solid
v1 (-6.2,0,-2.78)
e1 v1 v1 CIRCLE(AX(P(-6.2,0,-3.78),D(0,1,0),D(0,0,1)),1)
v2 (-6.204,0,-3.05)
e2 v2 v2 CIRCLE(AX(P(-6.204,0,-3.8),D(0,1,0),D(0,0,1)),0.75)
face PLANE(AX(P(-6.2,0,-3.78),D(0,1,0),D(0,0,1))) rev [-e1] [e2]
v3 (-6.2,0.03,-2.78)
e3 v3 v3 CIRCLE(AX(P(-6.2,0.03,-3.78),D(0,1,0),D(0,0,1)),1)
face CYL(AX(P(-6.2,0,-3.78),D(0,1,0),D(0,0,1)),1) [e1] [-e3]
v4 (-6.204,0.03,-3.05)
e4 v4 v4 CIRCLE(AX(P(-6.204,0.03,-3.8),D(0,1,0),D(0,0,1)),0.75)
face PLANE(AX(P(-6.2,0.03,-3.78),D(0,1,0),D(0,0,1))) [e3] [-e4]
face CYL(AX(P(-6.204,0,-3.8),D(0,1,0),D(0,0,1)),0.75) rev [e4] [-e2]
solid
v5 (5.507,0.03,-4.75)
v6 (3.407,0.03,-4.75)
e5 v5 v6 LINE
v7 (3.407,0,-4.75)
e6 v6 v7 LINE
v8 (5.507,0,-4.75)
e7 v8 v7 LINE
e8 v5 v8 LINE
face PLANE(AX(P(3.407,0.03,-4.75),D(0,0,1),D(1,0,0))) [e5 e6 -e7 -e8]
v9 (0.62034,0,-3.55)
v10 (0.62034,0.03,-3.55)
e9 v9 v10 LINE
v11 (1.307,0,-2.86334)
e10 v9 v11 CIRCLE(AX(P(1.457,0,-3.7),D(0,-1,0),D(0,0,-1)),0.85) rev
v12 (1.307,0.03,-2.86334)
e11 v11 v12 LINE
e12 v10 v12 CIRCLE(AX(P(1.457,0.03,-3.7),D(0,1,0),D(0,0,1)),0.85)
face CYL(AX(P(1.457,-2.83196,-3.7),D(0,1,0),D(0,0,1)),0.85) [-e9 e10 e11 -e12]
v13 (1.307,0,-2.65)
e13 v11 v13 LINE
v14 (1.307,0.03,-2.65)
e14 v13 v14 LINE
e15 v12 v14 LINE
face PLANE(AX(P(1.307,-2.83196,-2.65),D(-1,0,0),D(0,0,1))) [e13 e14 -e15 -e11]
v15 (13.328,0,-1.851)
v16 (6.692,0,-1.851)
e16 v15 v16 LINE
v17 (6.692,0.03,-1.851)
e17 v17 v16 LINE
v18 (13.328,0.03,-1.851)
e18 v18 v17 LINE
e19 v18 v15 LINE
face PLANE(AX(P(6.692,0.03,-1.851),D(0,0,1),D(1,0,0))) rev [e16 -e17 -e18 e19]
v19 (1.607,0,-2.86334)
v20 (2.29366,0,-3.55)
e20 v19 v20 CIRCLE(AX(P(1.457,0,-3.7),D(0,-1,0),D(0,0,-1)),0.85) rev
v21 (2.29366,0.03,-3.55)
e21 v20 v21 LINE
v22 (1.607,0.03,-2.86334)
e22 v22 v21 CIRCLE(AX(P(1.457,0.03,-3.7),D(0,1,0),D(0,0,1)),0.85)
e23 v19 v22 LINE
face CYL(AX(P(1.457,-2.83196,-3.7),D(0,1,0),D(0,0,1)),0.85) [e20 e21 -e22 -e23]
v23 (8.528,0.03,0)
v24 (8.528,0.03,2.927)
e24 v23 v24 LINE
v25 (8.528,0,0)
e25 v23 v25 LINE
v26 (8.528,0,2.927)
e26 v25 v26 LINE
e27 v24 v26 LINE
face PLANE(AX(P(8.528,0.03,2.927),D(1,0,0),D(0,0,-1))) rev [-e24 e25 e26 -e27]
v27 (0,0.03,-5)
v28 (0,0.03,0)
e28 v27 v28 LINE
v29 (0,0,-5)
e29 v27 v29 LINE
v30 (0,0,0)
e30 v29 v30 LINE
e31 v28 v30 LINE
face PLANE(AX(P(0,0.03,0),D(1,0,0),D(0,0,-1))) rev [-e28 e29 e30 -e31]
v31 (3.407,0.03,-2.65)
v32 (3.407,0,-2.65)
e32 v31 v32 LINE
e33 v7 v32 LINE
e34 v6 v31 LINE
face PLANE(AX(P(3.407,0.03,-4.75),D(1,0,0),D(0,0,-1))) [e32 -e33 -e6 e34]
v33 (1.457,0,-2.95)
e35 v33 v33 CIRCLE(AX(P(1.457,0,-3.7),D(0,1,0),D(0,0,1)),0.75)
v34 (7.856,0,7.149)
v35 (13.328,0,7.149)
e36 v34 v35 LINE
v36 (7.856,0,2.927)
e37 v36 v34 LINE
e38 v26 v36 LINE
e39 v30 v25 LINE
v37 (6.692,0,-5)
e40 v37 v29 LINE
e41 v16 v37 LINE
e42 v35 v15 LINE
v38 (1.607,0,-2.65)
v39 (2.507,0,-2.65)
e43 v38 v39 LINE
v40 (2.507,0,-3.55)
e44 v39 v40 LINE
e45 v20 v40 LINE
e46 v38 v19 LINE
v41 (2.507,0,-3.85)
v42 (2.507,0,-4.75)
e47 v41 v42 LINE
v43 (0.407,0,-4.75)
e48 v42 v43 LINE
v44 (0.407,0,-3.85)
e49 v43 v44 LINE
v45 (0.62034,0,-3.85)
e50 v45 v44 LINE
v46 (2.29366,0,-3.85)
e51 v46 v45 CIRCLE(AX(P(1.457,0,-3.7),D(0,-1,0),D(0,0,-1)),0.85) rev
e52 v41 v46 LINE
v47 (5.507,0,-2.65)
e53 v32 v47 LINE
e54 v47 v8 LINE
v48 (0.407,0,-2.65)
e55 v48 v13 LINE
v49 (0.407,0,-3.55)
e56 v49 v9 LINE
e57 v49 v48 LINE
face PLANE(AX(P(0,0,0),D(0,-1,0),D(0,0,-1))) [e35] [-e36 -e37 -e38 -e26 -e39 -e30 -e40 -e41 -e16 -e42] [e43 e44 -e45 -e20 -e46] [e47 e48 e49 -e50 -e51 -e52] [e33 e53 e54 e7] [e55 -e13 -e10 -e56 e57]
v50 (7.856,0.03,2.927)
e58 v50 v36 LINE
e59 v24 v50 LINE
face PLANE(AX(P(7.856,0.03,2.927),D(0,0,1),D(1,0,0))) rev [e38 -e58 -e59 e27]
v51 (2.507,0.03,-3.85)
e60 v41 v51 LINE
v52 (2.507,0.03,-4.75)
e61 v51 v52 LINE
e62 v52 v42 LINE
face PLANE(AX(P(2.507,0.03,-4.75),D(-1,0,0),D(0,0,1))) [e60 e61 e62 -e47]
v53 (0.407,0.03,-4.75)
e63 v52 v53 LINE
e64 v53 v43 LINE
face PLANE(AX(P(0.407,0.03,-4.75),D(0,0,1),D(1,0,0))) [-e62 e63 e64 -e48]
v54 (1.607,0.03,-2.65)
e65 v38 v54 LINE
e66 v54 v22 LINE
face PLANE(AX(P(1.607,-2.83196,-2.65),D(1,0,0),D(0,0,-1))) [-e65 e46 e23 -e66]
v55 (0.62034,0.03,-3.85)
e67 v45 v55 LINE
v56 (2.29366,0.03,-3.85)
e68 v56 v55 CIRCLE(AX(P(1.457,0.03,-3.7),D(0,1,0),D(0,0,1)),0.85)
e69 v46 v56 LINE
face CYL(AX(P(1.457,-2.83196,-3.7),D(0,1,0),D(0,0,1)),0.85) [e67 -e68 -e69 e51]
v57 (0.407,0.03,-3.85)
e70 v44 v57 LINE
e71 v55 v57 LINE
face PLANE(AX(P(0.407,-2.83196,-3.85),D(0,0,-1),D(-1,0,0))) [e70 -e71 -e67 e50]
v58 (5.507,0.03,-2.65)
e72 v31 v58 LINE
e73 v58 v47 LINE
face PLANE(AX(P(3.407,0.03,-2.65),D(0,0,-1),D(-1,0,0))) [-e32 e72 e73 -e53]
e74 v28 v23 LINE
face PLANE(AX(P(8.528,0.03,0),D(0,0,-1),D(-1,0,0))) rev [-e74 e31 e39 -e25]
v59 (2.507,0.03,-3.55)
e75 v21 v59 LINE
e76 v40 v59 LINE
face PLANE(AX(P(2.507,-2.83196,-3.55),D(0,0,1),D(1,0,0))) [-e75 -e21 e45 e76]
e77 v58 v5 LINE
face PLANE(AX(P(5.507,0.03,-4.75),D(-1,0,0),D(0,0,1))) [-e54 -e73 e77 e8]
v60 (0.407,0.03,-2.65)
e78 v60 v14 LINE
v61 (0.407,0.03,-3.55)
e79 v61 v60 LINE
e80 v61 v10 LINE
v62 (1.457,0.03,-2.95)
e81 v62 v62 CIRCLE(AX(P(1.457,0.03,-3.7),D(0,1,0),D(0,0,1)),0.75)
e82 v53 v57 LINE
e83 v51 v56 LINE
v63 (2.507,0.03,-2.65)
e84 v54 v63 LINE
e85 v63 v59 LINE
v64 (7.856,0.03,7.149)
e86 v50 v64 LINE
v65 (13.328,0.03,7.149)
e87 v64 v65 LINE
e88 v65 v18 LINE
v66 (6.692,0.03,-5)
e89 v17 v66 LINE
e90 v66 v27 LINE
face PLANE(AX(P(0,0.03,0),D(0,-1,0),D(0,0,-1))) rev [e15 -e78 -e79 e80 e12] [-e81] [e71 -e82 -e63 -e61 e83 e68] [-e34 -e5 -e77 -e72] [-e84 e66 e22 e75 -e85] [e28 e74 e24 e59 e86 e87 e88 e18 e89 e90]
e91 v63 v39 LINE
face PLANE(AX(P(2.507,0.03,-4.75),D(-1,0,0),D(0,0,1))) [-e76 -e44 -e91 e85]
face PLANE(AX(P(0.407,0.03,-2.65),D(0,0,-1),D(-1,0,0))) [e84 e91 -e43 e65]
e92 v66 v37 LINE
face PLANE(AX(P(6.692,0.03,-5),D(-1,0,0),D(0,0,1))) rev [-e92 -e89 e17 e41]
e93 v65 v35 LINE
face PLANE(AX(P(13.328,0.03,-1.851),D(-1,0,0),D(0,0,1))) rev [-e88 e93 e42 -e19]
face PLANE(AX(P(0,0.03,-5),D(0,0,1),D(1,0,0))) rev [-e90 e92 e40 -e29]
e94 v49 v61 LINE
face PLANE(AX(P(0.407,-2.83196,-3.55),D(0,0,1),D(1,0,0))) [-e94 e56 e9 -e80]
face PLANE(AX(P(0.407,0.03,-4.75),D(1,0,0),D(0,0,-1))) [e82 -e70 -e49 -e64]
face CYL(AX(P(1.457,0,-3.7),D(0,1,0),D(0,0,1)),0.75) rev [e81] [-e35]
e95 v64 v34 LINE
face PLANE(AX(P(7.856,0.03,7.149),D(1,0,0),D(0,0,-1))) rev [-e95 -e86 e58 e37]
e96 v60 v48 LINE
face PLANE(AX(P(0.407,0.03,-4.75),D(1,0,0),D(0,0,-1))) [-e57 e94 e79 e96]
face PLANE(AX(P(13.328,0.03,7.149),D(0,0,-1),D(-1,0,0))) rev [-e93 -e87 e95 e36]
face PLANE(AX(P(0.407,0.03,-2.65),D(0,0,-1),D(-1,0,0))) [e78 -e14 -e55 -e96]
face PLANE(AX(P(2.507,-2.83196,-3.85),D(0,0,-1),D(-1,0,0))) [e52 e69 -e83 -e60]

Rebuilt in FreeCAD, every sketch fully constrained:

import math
import FreeCAD as App
import Part
import Sketcher

V = App.Vector
Q = App.Units.Quantity

doc = App.newDocument("Part")
params = doc.addObject("Spreadsheet::Sheet", "Params")
for row, (alias, value) in enumerate([
    ("sketch1_height", "5 mm"),
    ("sketch1_height2", "9 mm"),
    ("sketch1_width", "2.1 mm"),
    ("pad1_length", "0.03 mm"),
    ("sketch2_radius", "0.85 mm"),
    ("sketch2_width", "0.3 mm"),
    ("pad2_length", "0.03 mm"),
    ("sketch3_diameter", "2 mm"),
    ("pad3_length", "0.03 mm"),
    ("sketch4_diameter", "1.5 mm"),
    ("pad4_length", "16.124308 mm"),
    ("pad4_length2", "16.124308 mm"),
], start=1):
    params.set(f"A{row}", alias)
    params.set(f"B{row}", "=" + value)
    params.setAlias(f"B{row}", alias)

body = doc.addObject("PartDesign::Body", "Body")

sketch1 = doc.addObject("Sketcher::SketchObject", "Sketch")
body.addObject(sketch1)
sketch1.AttachmentSupport = (doc.XZ_Plane, [""])
sketch1.MapMode = "FlatFace"
sketch1.addGeometry([
    Part.LineSegment(V(0, -5, 0), V(0, 0, 0)),
    Part.LineSegment(V(0, 0, 0), V(8.528, 0, 0)),
    Part.LineSegment(V(8.528, 0, 0), V(8.528, 2.927, 0)),
    Part.LineSegment(V(8.528, 2.927, 0), V(7.856, 2.927, 0)),
    Part.LineSegment(V(7.856, 2.927, 0), V(7.856, 7.149, 0)),
    Part.LineSegment(V(7.856, 7.149, 0), V(13.328, 7.149, 0)),
    Part.LineSegment(V(13.328, 7.149, 0), V(13.328, -1.851, 0)),
    Part.LineSegment(V(13.328, -1.851, 0), V(6.692, -1.851, 0)),
    Part.LineSegment(V(6.692, -1.851, 0), V(6.692, -5, 0)),
    Part.LineSegment(V(6.692, -5, 0), V(0, -5, 0)),
    Part.LineSegment(V(3.407, -2.65, 0), V(3.407, -4.75, 0)),
    Part.LineSegment(V(3.407, -4.75, 0), V(5.507, -4.75, 0)),
    Part.LineSegment(V(5.507, -4.75, 0), V(5.507, -2.65, 0)),
    Part.LineSegment(V(5.507, -2.65, 0), V(3.407, -2.65, 0)),
    Part.LineSegment(V(0.407, -2.65, 0), V(0.407, -4.75, 0)),
    Part.LineSegment(V(0.407, -4.75, 0), V(2.507, -4.75, 0)),
    Part.LineSegment(V(2.507, -4.75, 0), V(2.507, -2.65, 0)),
    Part.LineSegment(V(2.507, -2.65, 0), V(0.407, -2.65, 0)),
], False)
sketch1.addConstraint([
    Sketcher.Constraint("Coincident", 0, 2, 1, 1),
    Sketcher.Constraint("Coincident", 1, 2, 2, 1),
    Sketcher.Constraint("Coincident", 2, 2, 3, 1),
    Sketcher.Constraint("Coincident", 3, 2, 4, 1),
    Sketcher.Constraint("Coincident", 4, 2, 5, 1),
    Sketcher.Constraint("Coincident", 5, 2, 6, 1),
    Sketcher.Constraint("Coincident", 6, 2, 7, 1),
    Sketcher.Constraint("Coincident", 7, 2, 8, 1),
    Sketcher.Constraint("Coincident", 8, 2, 9, 1),
    Sketcher.Constraint("Coincident", 9, 2, 0, 1),
    Sketcher.Constraint("Coincident", 10, 2, 11, 1),
    Sketcher.Constraint("Coincident", 11, 2, 12, 1),
    Sketcher.Constraint("Coincident", 12, 2, 13, 1),
    Sketcher.Constraint("Coincident", 13, 2, 10, 1),
    Sketcher.Constraint("Coincident", 14, 2, 15, 1),
    Sketcher.Constraint("Coincident", 15, 2, 16, 1),
    Sketcher.Constraint("Coincident", 16, 2, 17, 1),
    Sketcher.Constraint("Coincident", 17, 2, 14, 1),
    Sketcher.Constraint("Vertical", 0),
    Sketcher.Constraint("Horizontal", 1),
    Sketcher.Constraint("Vertical", 2),
    Sketcher.Constraint("Horizontal", 3),
    Sketcher.Constraint("Vertical", 4),
    Sketcher.Constraint("Horizontal", 5),
    Sketcher.Constraint("Vertical", 6),
    Sketcher.Constraint("Horizontal", 7),
    Sketcher.Constraint("Vertical", 8),
    Sketcher.Constraint("Horizontal", 9),
    Sketcher.Constraint("Vertical", 10),
    Sketcher.Constraint("Horizontal", 11),
    Sketcher.Constraint("Vertical", 12),
    Sketcher.Constraint("Horizontal", 13),
    Sketcher.Constraint("Vertical", 14),
    Sketcher.Constraint("Horizontal", 15),
    Sketcher.Constraint("Vertical", 16),
    Sketcher.Constraint("Horizontal", 17),
    Sketcher.Constraint("Coincident", 0, 2, -1, 1),
    Sketcher.Constraint("Horizontal", 11, 2, 14, 2),
    Sketcher.Constraint("Horizontal", 13, 2, 16, 2),
    Sketcher.Constraint("Equal", 13, 15),
    Sketcher.Constraint("Equal", 17, 10),
    Sketcher.Constraint("DistanceY", 0, 1, 0, 2, Q("5 mm")),
    Sketcher.Constraint("DistanceY", 6, 2, 6, 1, Q("9 mm")),
    Sketcher.Constraint("DistanceX", 11, 1, 11, 2, Q("2.1 mm")),
    Sketcher.Constraint("DistanceX", 14, 2, 10, 2, Q("3 mm")),
    Sketcher.Constraint("DistanceX", 2, 2, 5, 2, Q("4.8 mm")),
    Sketcher.Constraint("DistanceX", 1, 1, 1, 2, Q("8.528 mm")),
    Sketcher.Constraint("DistanceX", 3, 2, 3, 1, Q("0.672 mm")),
    Sketcher.Constraint("DistanceX", 7, 2, 7, 1, Q("6.636 mm")),
    Sketcher.Constraint("DistanceY", 2, 1, 2, 2, Q("2.927 mm")),
    Sketcher.Constraint("DistanceY", 4, 1, 4, 2, Q("4.222 mm")),
    Sketcher.Constraint("DistanceY", 10, 2, -1, 1, Q("4.75 mm")),
    Sketcher.Constraint("DistanceX", -1, 1, 10, 2, Q("3.407 mm")),
])
sketch1.setExpression("Constraints[41]", "Params.sketch1_height")
sketch1.setExpression("Constraints[42]", "Params.sketch1_height2")
sketch1.setExpression("Constraints[43]", "Params.sketch1_width")
pad1 = doc.addObject("PartDesign::Pad", "Pad")
body.addObject(pad1)
pad1.Profile = sketch1
pad1.setExpression("Length", "Params.pad1_length")
pad1.Reversed = True

sketch2 = doc.addObject("Sketcher::SketchObject", "Sketch001")
body.addObject(sketch2)
sketch2.AttachmentSupport = (doc.XZ_Plane, [""])
sketch2.MapMode = "FlatFace"
sketch2.AttachmentOffset = App.Placement(V(0, 0, -0.03), App.Rotation())
sketch2.addGeometry([
    Part.LineSegment(V(2.29366, -3.55, 0), V(2.507, -3.55, 0)),
    Part.LineSegment(V(2.507, -3.55, 0), V(2.507, -3.85, 0)),
    Part.LineSegment(V(2.507, -3.85, 0), V(2.29366, -3.85, 0)),
    Part.ArcOfCircle(Part.Circle(V(1.457, -3.7, 0), V(0, 0, 1), 0.85), math.radians(-169.835751), math.radians(-10.164249)),
    Part.LineSegment(V(0.62034, -3.85, 0), V(0.407, -3.85, 0)),
    Part.LineSegment(V(0.407, -3.85, 0), V(0.407, -3.55, 0)),
    Part.LineSegment(V(0.407, -3.55, 0), V(0.62034, -3.55, 0)),
    Part.ArcOfCircle(Part.Circle(V(1.457, -3.7, 0), V(0, 0, 1), 0.85), math.radians(100.164249), math.radians(169.835751)),
    Part.LineSegment(V(1.307, -2.86334, 0), V(1.307, -2.65, 0)),
    Part.LineSegment(V(1.307, -2.65, 0), V(1.607, -2.65, 0)),
    Part.LineSegment(V(1.607, -2.65, 0), V(1.607, -2.86334, 0)),
    Part.ArcOfCircle(Part.Circle(V(1.457, -3.7, 0), V(0, 0, 1), 0.85), math.radians(10.164249), math.radians(79.835751)),
], False)
sketch2.addConstraint([
    Sketcher.Constraint("Coincident", 0, 2, 1, 1),
    Sketcher.Constraint("Coincident", 1, 2, 2, 1),
    Sketcher.Constraint("Coincident", 2, 2, 3, 2),
    Sketcher.Constraint("Coincident", 3, 1, 4, 1),
    Sketcher.Constraint("Coincident", 4, 2, 5, 1),
    Sketcher.Constraint("Coincident", 5, 2, 6, 1),
    Sketcher.Constraint("Coincident", 6, 2, 7, 2),
    Sketcher.Constraint("Coincident", 7, 1, 8, 1),
    Sketcher.Constraint("Coincident", 8, 2, 9, 1),
    Sketcher.Constraint("Coincident", 9, 2, 10, 1),
    Sketcher.Constraint("Coincident", 10, 2, 11, 2),
    Sketcher.Constraint("Coincident", 11, 1, 0, 1),
    Sketcher.Constraint("Horizontal", 0),
    Sketcher.Constraint("Vertical", 1),
    Sketcher.Constraint("Horizontal", 2),
    Sketcher.Constraint("Horizontal", 4),
    Sketcher.Constraint("Vertical", 5),
    Sketcher.Constraint("Horizontal", 6),
    Sketcher.Constraint("Vertical", 8),
    Sketcher.Constraint("Horizontal", 9),
    Sketcher.Constraint("Vertical", 10),
    Sketcher.Constraint("Coincident", 7, 3, 3, 3),
    Sketcher.Constraint("Coincident", 11, 3, 3, 3),
    Sketcher.Constraint("Equal", 3, 7),
    Sketcher.Constraint("Equal", 7, 11),
    Sketcher.Constraint("Horizontal", 2, 2, 3, 1),
    Sketcher.Constraint("Horizontal", 0, 2, 5, 2),
    Sketcher.Constraint("Horizontal", 7, 1, 10, 2),
    Sketcher.Constraint("Vertical", 3, 1, 6, 2),
    Sketcher.Constraint("Equal", 2, 4),
    Sketcher.Constraint("Equal", 9, 1),
    Sketcher.Constraint("Equal", 6, 8),
    Sketcher.Constraint("Radius", 3, Q("0.85 mm")),
    Sketcher.Constraint("DistanceX", 9, 1, 9, 2, Q("0.3 mm")),
    Sketcher.Constraint("DistanceY", 3, 3, -1, 1, Q("3.7 mm")),
    Sketcher.Constraint("DistanceX", 5, 2, 7, 1, Q("0.9 mm")),
    Sketcher.Constraint("DistanceX", -1, 1, 3, 3, Q("1.457 mm")),
])
sketch2.setExpression("Constraints[32]", "Params.sketch2_radius")
sketch2.setExpression("Constraints[33]", "Params.sketch2_width")
pad2 = doc.addObject("PartDesign::Pad", "Pad001")
body.addObject(pad2)
pad2.Profile = sketch2
pad2.setExpression("Length", "Params.pad2_length")
body2 = doc.addObject("PartDesign::Body", "Body001")

sketch3 = doc.addObject("Sketcher::SketchObject", "Sketch002")
body2.addObject(sketch3)
sketch3.AttachmentSupport = (doc.getObject("XZ_Plane001"), [""])
sketch3.MapMode = "FlatFace"
sketch3.AttachmentOffset = App.Placement(V(0, 0, -0.03), App.Rotation())
sketch3.addGeometry(Part.Circle(V(-6.2, -3.78, 0), V(0, 0, 1), 1), False)
sketch3.addConstraint([
    Sketcher.Constraint("Diameter", 0, Q("2 mm")),
    Sketcher.Constraint("DistanceX", 0, 3, -1, 1, Q("6.2 mm")),
    Sketcher.Constraint("DistanceY", 0, 3, -1, 1, Q("3.78 mm")),
])
sketch3.setExpression("Constraints[0]", "Params.sketch3_diameter")
pad3 = doc.addObject("PartDesign::Pad", "Pad002")
body2.addObject(pad3)
pad3.Profile = sketch3
pad3.setExpression("Length", "Params.pad3_length")
body3 = doc.addObject("PartDesign::Body", "Body002")
body3.AllowCompound = True

sketch4 = doc.addObject("Sketcher::SketchObject", "Sketch003")
body3.addObject(sketch4)
sketch4.AttachmentSupport = (doc.getObject("XZ_Plane002"), [""])
sketch4.MapMode = "FlatFace"
sketch4.AttachmentOffset = App.Placement(V(0, 0, -0.03), App.Rotation())
sketch4.addGeometry([
    Part.Circle(V(-6.204, -3.8, 0), V(0, 0, 1), 0.75),
    Part.Circle(V(1.457, -3.7, 0), V(0, 0, 1), 0.75),
], False)
sketch4.addConstraint([
    Sketcher.Constraint("Equal", 0, 1),
    Sketcher.Constraint("Diameter", 0, Q("1.5 mm")),
    Sketcher.Constraint("DistanceY", 0, 3, -1, 1, Q("3.8 mm")),
    Sketcher.Constraint("DistanceY", 1, 3, -1, 1, Q("3.7 mm")),
    Sketcher.Constraint("DistanceX", 0, 3, -1, 1, Q("6.204 mm")),
    Sketcher.Constraint("DistanceX", -1, 1, 1, 3, Q("1.457 mm")),
])
sketch4.setExpression("Constraints[1]", "Params.sketch4_diameter")
pad4 = doc.addObject("PartDesign::Pad", "Pad003")
body3.addObject(pad4)
pad4.Profile = sketch4
pad4.Type = "TwoLengths"
pad4.setExpression("Length", "Params.pad4_length")
pad4.setExpression("Length2", "Params.pad4_length2")
pad4.Reversed = True
doc.recompute()

body4 = doc.addObject("PartDesign::Body", "Body003")
body4.BaseFeature = body3
boolean = doc.addObject("PartDesign::Boolean", "Boolean")
body.addObject(boolean)
boolean.Type = "Cut"
boolean.addObjects([body4])
doc.recompute()

boolean2 = doc.addObject("PartDesign::Boolean", "Boolean001")
body2.addObject(boolean2)
boolean2.Type = "Cut"
boolean2.addObjects([body3])

doc.recompute()
